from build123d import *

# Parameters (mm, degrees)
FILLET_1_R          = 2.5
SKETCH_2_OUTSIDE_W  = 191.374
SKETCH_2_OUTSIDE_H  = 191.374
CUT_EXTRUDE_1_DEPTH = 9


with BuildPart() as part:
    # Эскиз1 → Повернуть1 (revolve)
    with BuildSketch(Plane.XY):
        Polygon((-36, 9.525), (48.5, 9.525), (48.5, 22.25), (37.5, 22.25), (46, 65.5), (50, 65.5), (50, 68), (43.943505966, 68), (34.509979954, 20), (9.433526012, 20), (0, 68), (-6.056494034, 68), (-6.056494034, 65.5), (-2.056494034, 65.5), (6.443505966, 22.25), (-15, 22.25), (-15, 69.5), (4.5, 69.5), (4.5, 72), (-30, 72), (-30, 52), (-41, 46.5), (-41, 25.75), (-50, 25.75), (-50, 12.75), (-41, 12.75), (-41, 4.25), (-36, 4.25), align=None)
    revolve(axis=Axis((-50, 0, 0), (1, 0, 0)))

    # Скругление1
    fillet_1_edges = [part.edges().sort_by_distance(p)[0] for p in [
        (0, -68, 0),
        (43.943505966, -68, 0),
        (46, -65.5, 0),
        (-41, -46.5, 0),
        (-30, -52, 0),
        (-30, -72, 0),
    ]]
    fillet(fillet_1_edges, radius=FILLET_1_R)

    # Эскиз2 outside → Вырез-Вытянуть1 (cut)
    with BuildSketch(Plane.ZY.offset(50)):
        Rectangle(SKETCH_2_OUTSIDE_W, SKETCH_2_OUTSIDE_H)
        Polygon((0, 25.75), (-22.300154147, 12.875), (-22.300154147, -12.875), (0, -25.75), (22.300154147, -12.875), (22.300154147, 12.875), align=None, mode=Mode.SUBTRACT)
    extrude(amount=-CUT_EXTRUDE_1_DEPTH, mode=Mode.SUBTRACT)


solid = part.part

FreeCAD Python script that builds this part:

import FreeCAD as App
import Part
import Sketcher

V = App.Vector
Q = App.Units.Quantity


def edges_at(feature, points):
    """Names of the edges that pass closest to the given points."""
    edges = feature.Shape.Edges
    near = lambda p: min(range(len(edges)), key=lambda i: edges[i].distToShape(Part.Vertex(*p))[0])
    return sorted({f"Edge{near(p) + 1}" for p in points})

doc = App.newDocument("Part")
body = doc.addObject("PartDesign::Body", "Body")

# Sketch on XY plane
sketch1 = body.newObject("Sketcher::SketchObject", "Sketch")
sketch1.AttachmentSupport = (doc.getObject("XY_Plane"), [""])
sketch1.MapMode = "FlatFace"
sketch1.addGeometry([
    Part.LineSegment(V(-36, 9.5, 0), V(48.5, 9.5, 0)),  # 0
    Part.LineSegment(V(48.5, 9.5, 0), V(48.5, 22.2, 0)),  # 1
    Part.LineSegment(V(48.5, 22.2, 0), V(37.5, 22.2, 0)),  # 2
    Part.LineSegment(V(37.5, 22.2, 0), V(46, 65.5, 0)),  # 3
    Part.LineSegment(V(46, 65.5, 0), V(50, 65.5, 0)),  # 4
    Part.LineSegment(V(50, 65.5, 0), V(50, 68, 0)),  # 5
    Part.LineSegment(V(50, 68, 0), V(43.9, 68, 0)),  # 6
    Part.LineSegment(V(43.9, 68, 0), V(34.5, 20, 0)),  # 7
    Part.LineSegment(V(34.5, 20, 0), V(9.4, 20, 0)),  # 8
    Part.LineSegment(V(9.4, 20, 0), V(0, 68, 0)),  # 9
    Part.LineSegment(V(0, 68, 0), V(-6.1, 68, 0)),  # 10
    Part.LineSegment(V(-6.1, 68, 0), V(-6.1, 65.5, 0)),  # 11
    Part.LineSegment(V(-6.1, 65.5, 0), V(-2.1, 65.5, 0)),  # 12
    Part.LineSegment(V(-2.1, 65.5, 0), V(6.4, 22.2, 0)),  # 13
    Part.LineSegment(V(6.4, 22.2, 0), V(-15, 22.2, 0)),  # 14
    Part.LineSegment(V(-15, 22.2, 0), V(-15, 69.5, 0)),  # 15
    Part.LineSegment(V(-15, 69.5, 0), V(4.5, 69.5, 0)),  # 16
    Part.LineSegment(V(4.5, 69.5, 0), V(4.5, 72, 0)),  # 17
    Part.LineSegment(V(4.5, 72, 0), V(-30, 72, 0)),  # 18
    Part.LineSegment(V(-30, 72, 0), V(-30, 52, 0)),  # 19
    Part.LineSegment(V(-30, 52, 0), V(-41, 46.5, 0)),  # 20
    Part.LineSegment(V(-41, 46.5, 0), V(-41, 25.8, 0)),  # 21
    Part.LineSegment(V(-41, 25.8, 0), V(-50, 25.8, 0)),  # 22
    Part.LineSegment(V(-50, 25.8, 0), V(-50, 12.8, 0)),  # 23
    Part.LineSegment(V(-50, 12.8, 0), V(-41, 12.8, 0)),  # 24
    Part.LineSegment(V(-41, 12.8, 0), V(-41, 4.2, 0)),  # 25
    Part.LineSegment(V(-41, 4.2, 0), V(-36, 4.2, 0)),  # 26
    Part.LineSegment(V(-36, 4.2, 0), V(-36, 9.5, 0)),  # 27
], False)
sketch1.addConstraint([
    Sketcher.Constraint("Coincident", 0, 2, 1, 1),
    Sketcher.Constraint("Coincident", 1, 2, 2, 1),
    Sketcher.Constraint("Coincident", 2, 2, 3, 1),
    Sketcher.Constraint("Coincident", 3, 2, 4, 1),
    Sketcher.Constraint("Coincident", 4, 2, 5, 1),
    Sketcher.Constraint("Coincident", 5, 2, 6, 1),
    Sketcher.Constraint("Coincident", 6, 2, 7, 1),
    Sketcher.Constraint("Coincident", 7, 2, 8, 1),
    Sketcher.Constraint("Coincident", 8, 2, 9, 1),
    Sketcher.Constraint("Coincident", 9, 2, 10, 1),
    Sketcher.Constraint("Coincident", 10, 2, 11, 1),
    Sketcher.Constraint("Coincident", 11, 2, 12, 1),
    Sketcher.Constraint("Coincident", 12, 2, 13, 1),
    Sketcher.Constraint("Coincident", 13, 2, 14, 1),
    Sketcher.Constraint("Coincident", 14, 2, 15, 1),
    Sketcher.Constraint("Coincident", 15, 2, 16, 1),
    Sketcher.Constraint("Coincident", 16, 2, 17, 1),
    Sketcher.Constraint("Coincident", 17, 2, 18, 1),
    Sketcher.Constraint("Coincident", 18, 2, 19, 1),
    Sketcher.Constraint("Coincident", 19, 2, 20, 1),
    Sketcher.Constraint("Coincident", 20, 2, 21, 1),
    Sketcher.Constraint("Coincident", 21, 2, 22, 1),
    Sketcher.Constraint("Coincident", 22, 2, 23, 1),
    Sketcher.Constraint("Coincident", 23, 2, 24, 1),
    Sketcher.Constraint("Coincident", 24, 2, 25, 1),
    Sketcher.Constraint("Coincident", 25, 2, 26, 1),
    Sketcher.Constraint("Coincident", 26, 2, 27, 1),
    Sketcher.Constraint("Coincident", 27, 2, 0, 1),
    Sketcher.Constraint("Horizontal", 0),
    Sketcher.Constraint("Vertical", 1),
    Sketcher.Constraint("Horizontal", 2),
    Sketcher.Constraint("Horizontal", 4),
    Sketcher.Constraint("Vertical", 5),
    Sketcher.Constraint("Horizontal", 6),
    Sketcher.Constraint("Horizontal", 8),
    Sketcher.Constraint("Horizontal", 10),
    Sketcher.Constraint("Vertical", 11),
    Sketcher.Constraint("Horizontal", 12),
    Sketcher.Constraint("Horizontal", 14),
    Sketcher.Constraint("Vertical", 15),
    Sketcher.Constraint("Horizontal", 16),
    Sketcher.Constraint("Vertical", 17),
    Sketcher.Constraint("Horizontal", 18),
    Sketcher.Constraint("Vertical", 19),
    Sketcher.Constraint("Vertical", 21),
    Sketcher.Constraint("Horizontal", 22),
    Sketcher.Constraint("Vertical", 23),
    Sketcher.Constraint("Horizontal", 24),
    Sketcher.Constraint("Vertical", 25),
    Sketcher.Constraint("Horizontal", 26),
    Sketcher.Constraint("Vertical", 27),
    Sketcher.Constraint("PointOnObject", 9, 2, -2),
    Sketcher.Constraint("Parallel", 3, 7),
    Sketcher.Constraint("Parallel", 9, 13),
    Sketcher.Constraint("Horizontal", 6, 2, 9, 2),
    Sketcher.Constraint("Horizontal", 4, 2, 11, 2),
    Sketcher.Constraint("Horizontal", 2, 2, 13, 2),
    Sketcher.Constraint("Vertical", 21, 2, 24, 2),
    Sketcher.Constraint("Equal", 6, 10),
    Sketcher.Constraint("Equal", 4, 12),
    Sketcher.Constraint("Equal", 11, 17),
    Sketcher.Constraint("Equal", 7, 9),
    Sketcher.Constraint("DistanceX", 2, 2, 2, 1, Q("11 mm")),
    Sketcher.Constraint("DistanceX", 4, 1, 4, 2, Q("4 mm")),
    Sketcher.Constraint("DistanceX", 22, 2, 22, 1, Q("9 mm")),
    Sketcher.Constraint("DistanceX", 26, 1, 26, 2, Q("5 mm")),
    Sketcher.Constraint("DistanceY", 19, 2, 19, 1, Q("20 mm")),
    Sketcher.Constraint("DistanceY", 23, 2, 23, 1, Q("13 mm")),
    Sketcher.Constraint("DistanceX", 0, 1, 0, 2, Q("84.5 mm")),
    Sketcher.Constraint("DistanceX", 16, 1, 16, 2, Q("19.5 mm")),
    Sketcher.Constraint("DistanceX", 18, 2, 18, 1, Q("34.5 mm")),
    Sketcher.Constraint("DistanceY", 5, 1, 5, 2, Q("2.5 mm")),
    Sketcher.Constraint("DistanceY", 25, 2, 25, 1, Q("8.5 mm")),
    Sketcher.Constraint("DistanceX", -1, 1, 3, 2, Q("46 mm")),
    Sketcher.Constraint("DistanceY", -1, 1, 5, 2, Q("68 mm")),
    Sketcher.Constraint("DistanceY", -1, 1, 7, 2, Q("20 mm")),
    Sketcher.Constraint("DistanceX", 14, 2, -1, 1, Q("15 mm")),
    Sketcher.Constraint("DistanceY", -1, 1, 17, 2, Q("72 mm")),
    Sketcher.Constraint("DistanceX", 20, 2, -1, 1, Q("41 mm")),
    Sketcher.Constraint("DistanceY", 20, 2, 15, 2, Q("23 mm")),
    Sketcher.Constraint("DistanceY", 25, 2, 14, 2, Q("18 mm")),
    Sketcher.Constraint("DistanceY", 15, 1, 15, 2, Q("47.25 mm")),
    Sketcher.Constraint("DistanceY", 1, 1, 1, 2, Q("12.725 mm")),
    Sketcher.Constraint("DistanceX", 6, 2, 6, 1, Q("6.056494 mm")),
])
revolution = body.newObject("PartDesign::Revolution", "Revolution")
revolution.Profile = sketch1
revolution.ReferenceAxis = (sketch1, ["H_Axis"])
revolution.Angle = 360
doc.recompute()

fillet = body.newObject("PartDesign::Fillet", "Fillet")
fillet.Base = (revolution, edges_at(revolution, [
    (0, -68, 0),
    (43.944, -68, 0),
    (46, -65.5, 0),
    (-41, -46.5, 0),
    (-30, -52, 0),
    (-30, -72, 0),
]))
fillet.Radius = 2.5

# Sketch on YZ plane
sketch2 = body.newObject("Sketcher::SketchObject", "Sketch001")
sketch2.AttachmentSupport = (doc.getObject("YZ_Plane"), [""])
sketch2.MapMode = "FlatFace"
sketch2.AttachmentOffset = App.Placement(V(0, 0, -50), App.Rotation())
sketch2.addGeometry([
    Part.LineSegment(V(96, -96, 0), V(-96, -96, 0)),  # 0
    Part.LineSegment(V(-96, -96, 0), V(-96, 96, 0)),  # 1
    Part.LineSegment(V(-96, 96, 0), V(96, 96, 0)),  # 2
    Part.LineSegment(V(96, 96, 0), V(96, -96, 0)),  # 3
    Part.LineSegment(V(13, -22, 0), V(26, 0, 0)),  # 4
    Part.LineSegment(V(26, 0, 0), V(13, 22, 0)),  # 5
    Part.LineSegment(V(13, 22, 0), V(-13, 22, 0)),  # 6
    Part.LineSegment(V(-13, 22, 0), V(-26, 0, 0)),  # 7
    Part.LineSegment(V(-26, 0, 0), V(-13, -22, 0)),  # 8
    Part.LineSegment(V(-13, -22, 0), V(13, -22, 0)),  # 9
], False)
sketch2.addConstraint([
    Sketcher.Constraint("Coincident", 0, 2, 1, 1),
    Sketcher.Constraint("Coincident", 1, 2, 2, 1),
    Sketcher.Constraint("Coincident", 2, 2, 3, 1),
    Sketcher.Constraint("Coincident", 3, 2, 0, 1),
    Sketcher.Constraint("Coincident", 4, 2, 5, 1),
    Sketcher.Constraint("Coincident", 5, 2, 6, 1),
    Sketcher.Constraint("Coincident", 6, 2, 7, 1),
    Sketcher.Constraint("Coincident", 7, 2, 8, 1),
    Sketcher.Constraint("Coincident", 8, 2, 9, 1),
    Sketcher.Constraint("Coincident", 9, 2, 4, 1),
    Sketcher.Constraint("Horizontal", 0),
    Sketcher.Constraint("Vertical", 1),
    Sketcher.Constraint("Horizontal", 2),
    Sketcher.Constraint("Vertical", 3),
    Sketcher.Constraint("Horizontal", 6),
    Sketcher.Constraint("Horizontal", 9),
    Sketcher.Constraint("Symmetric", 0, 2, 2, 2, -1, 1),
    Sketcher.Constraint("Symmetric", 4, 2, 7, 2, -1, 1),
    Sketcher.Constraint("Symmetric", 5, 2, 8, 2, -1, 1),
    Sketcher.Constraint("PointOnObject", 4, 2, -1),
    Sketcher.Constraint("Parallel", 4, 7),
    Sketcher.Constraint("Vertical", 6, 2, 8, 2),
    Sketcher.Constraint("Equal", 2, 1),
    Sketcher.Constraint("Angle", 4, Q("60 deg")),
    Sketcher.Constraint("DistanceX", 6, 2, 6, 1, Q("25.75 mm")),
    Sketcher.Constraint("DistanceX", 7, 2, 4, 2, Q("51.5 mm")),
    Sketcher.Constraint("DistanceX", 0, 2, 0, 1, Q("191.374 mm")),
])
pocket1 = body.newObject("PartDesign::Pocket", "Pocket")
pocket1.Profile = sketch2
pocket1.Length = 9
pocket1.Reversed = True

doc.recompute()
